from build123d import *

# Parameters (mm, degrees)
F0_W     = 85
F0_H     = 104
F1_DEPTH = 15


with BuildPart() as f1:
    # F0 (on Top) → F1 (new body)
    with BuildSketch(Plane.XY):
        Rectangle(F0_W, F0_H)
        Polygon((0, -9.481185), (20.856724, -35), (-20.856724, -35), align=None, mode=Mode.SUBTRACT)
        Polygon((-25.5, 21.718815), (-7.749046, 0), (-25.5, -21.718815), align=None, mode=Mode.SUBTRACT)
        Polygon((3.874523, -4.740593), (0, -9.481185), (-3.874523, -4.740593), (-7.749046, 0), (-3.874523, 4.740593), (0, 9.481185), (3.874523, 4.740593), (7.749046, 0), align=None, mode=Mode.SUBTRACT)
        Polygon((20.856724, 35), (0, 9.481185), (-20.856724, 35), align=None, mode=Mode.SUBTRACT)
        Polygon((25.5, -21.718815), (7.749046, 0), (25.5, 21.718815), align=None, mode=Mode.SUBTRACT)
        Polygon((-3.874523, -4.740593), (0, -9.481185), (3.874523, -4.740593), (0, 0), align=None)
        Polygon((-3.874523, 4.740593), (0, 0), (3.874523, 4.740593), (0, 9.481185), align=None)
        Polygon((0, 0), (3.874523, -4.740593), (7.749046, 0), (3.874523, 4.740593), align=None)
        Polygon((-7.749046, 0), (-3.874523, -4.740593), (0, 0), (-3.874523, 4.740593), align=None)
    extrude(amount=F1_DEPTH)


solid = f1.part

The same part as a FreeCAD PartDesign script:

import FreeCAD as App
import Part
import Sketcher
from FreeCAD import Vector

doc = App.newDocument("Part")
params = doc.addObject("Spreadsheet::Sheet", "Params")
for row, (alias, value) in enumerate([
    ("sketch1_width", "85 mm"),
    ("sketch1_height", "104 mm"),
    ("pad1_length", "15 mm"),
], start=1):
    params.set(f"A{row}", alias)
    params.set(f"B{row}", "=" + value)
    params.setAlias(f"B{row}", alias)

body = doc.addObject("PartDesign::Body", "Body")

# Sketch on XY plane
sketch1 = body.newObject("Sketcher::SketchObject", "Sketch")
sketch1.AttachmentSupport = (doc.getObject("XY_Plane"), [""])
sketch1.MapMode = "FlatFace"
sketch1.addGeometry([
    Part.LineSegment(Vector(-42.5, 52, 0), Vector(-42.5, -52, 0)),  # 0
    Part.LineSegment(Vector(-42.5, -52, 0), Vector(42.5, -52, 0)),  # 1
    Part.LineSegment(Vector(42.5, -52, 0), Vector(42.5, 52, 0)),  # 2
    Part.LineSegment(Vector(42.5, 52, 0), Vector(-42.5, 52, 0)),  # 3
    Part.LineSegment(Vector(20.856724, -35, 0), Vector(-20.856724, -35, 0)),  # 4
    Part.LineSegment(Vector(-20.856724, -35, 0), Vector(0, -9.481185, 0)),  # 5
    Part.LineSegment(Vector(0, -9.481185, 0), Vector(20.856724, -35, 0)),  # 6
    Part.LineSegment(Vector(-25.5, 21.718815, 0), Vector(-7.749046, 0, 0)),  # 7
    Part.LineSegment(Vector(-7.749046, 0, 0), Vector(-25.5, -21.718815, 0)),  # 8
    Part.LineSegment(Vector(-25.5, -21.718815, 0), Vector(-25.5, 21.718815, 0)),  # 9
    Part.LineSegment(Vector(25.5, -21.718815, 0), Vector(7.749046, 0, 0)),  # 10
    Part.LineSegment(Vector(7.749046, 0, 0), Vector(25.5, 21.718815, 0)),  # 11
    Part.LineSegment(Vector(25.5, 21.718815, 0), Vector(25.5, -21.718815, 0)),  # 12
    Part.LineSegment(Vector(20.856724, 35, 0), Vector(0, 9.481185, 0)),  # 13
    Part.LineSegment(Vector(0, 9.481185, 0), Vector(-20.856724, 35, 0)),  # 14
    Part.LineSegment(Vector(-20.856724, 35, 0), Vector(20.856724, 35, 0)),  # 15
], False)
sketch1.addConstraint([
    Sketcher.Constraint("Coincident", 0, 2, 1, 1),
    Sketcher.Constraint("Coincident", 1, 2, 2, 1),
    Sketcher.Constraint("Coincident", 2, 2, 3, 1),
    Sketcher.Constraint("Coincident", 3, 2, 0, 1),
    Sketcher.Constraint("Coincident", 4, 2, 5, 1),
    Sketcher.Constraint("Coincident", 5, 2, 6, 1),
    Sketcher.Constraint("Coincident", 6, 2, 4, 1),
    Sketcher.Constraint("Coincident", 7, 2, 8, 1),
    Sketcher.Constraint("Coincident", 8, 2, 9, 1),
    Sketcher.Constraint("Coincident", 9, 2, 7, 1),
    Sketcher.Constraint("Coincident", 10, 2, 11, 1),
    Sketcher.Constraint("Coincident", 11, 2, 12, 1),
    Sketcher.Constraint("Coincident", 12, 2, 10, 1),
    Sketcher.Constraint("Coincident", 13, 2, 14, 1),
    Sketcher.Constraint("Coincident", 14, 2, 15, 1),
    Sketcher.Constraint("Coincident", 15, 2, 13, 1),
    Sketcher.Constraint("Vertical", 0),
    Sketcher.Constraint("Horizontal", 1),
    Sketcher.Constraint("Vertical", 2),
    Sketcher.Constraint("Horizontal", 3),
    Sketcher.Constraint("Horizontal", 4),
    Sketcher.Constraint("Vertical", 9),
    Sketcher.Constraint("Vertical", 12),
    Sketcher.Constraint("Horizontal", 15),
    Sketcher.Constraint("Symmetric", 0, 2, 2, 2, -1, 1),
    Sketcher.Constraint("Symmetric", 7, 2, 10, 2, -1, 1),
    Sketcher.Constraint("Symmetric", 8, 2, 11, 2, -1, 1),
    Sketcher.Constraint("Symmetric", 5, 2, 13, 2, -1, 1),
    Sketcher.Constraint("Symmetric", 6, 2, 14, 2, -1, 1),
    Sketcher.Constraint("PointOnObject", 5, 2, -2),
    Sketcher.Constraint("PointOnObject", 7, 2, -1),
    Sketcher.Constraint("Parallel", 6, 7),
    Sketcher.Constraint("Parallel", 5, 8),
    Sketcher.Constraint("Parallel", 7, 10),
    Sketcher.Constraint("Parallel", 11, 13),
    Sketcher.Constraint("Horizontal", 9, 2, 11, 2),
    Sketcher.Constraint("DistanceX", 1, 1, 1, 2, 85.0),
    Sketcher.Constraint("DistanceY", 0, 2, 0, 1, 104.0),
    Sketcher.Constraint("DistanceY", 4, 2, -1, 1, 35.0),
    Sketcher.Constraint("DistanceX", 0, 2, 8, 2, 17.0),
    Sketcher.Constraint("DistanceY", 5, 2, 9, 2, 31.2),
    Sketcher.Constraint("DistanceY", 9, 1, 9, 2, 43.43763),
    Sketcher.Constraint("DistanceX", 4, 2, 4, 1, 41.713448),
])
sketch1.setExpression("Constraints[36]", "Params.sketch1_width")
sketch1.setExpression("Constraints[37]", "Params.sketch1_height")
pad1 = body.newObject("PartDesign::Pad", "Pad")
pad1.Profile = sketch1
pad1.setExpression("Length", "Params.pad1_length")

doc.recompute()
